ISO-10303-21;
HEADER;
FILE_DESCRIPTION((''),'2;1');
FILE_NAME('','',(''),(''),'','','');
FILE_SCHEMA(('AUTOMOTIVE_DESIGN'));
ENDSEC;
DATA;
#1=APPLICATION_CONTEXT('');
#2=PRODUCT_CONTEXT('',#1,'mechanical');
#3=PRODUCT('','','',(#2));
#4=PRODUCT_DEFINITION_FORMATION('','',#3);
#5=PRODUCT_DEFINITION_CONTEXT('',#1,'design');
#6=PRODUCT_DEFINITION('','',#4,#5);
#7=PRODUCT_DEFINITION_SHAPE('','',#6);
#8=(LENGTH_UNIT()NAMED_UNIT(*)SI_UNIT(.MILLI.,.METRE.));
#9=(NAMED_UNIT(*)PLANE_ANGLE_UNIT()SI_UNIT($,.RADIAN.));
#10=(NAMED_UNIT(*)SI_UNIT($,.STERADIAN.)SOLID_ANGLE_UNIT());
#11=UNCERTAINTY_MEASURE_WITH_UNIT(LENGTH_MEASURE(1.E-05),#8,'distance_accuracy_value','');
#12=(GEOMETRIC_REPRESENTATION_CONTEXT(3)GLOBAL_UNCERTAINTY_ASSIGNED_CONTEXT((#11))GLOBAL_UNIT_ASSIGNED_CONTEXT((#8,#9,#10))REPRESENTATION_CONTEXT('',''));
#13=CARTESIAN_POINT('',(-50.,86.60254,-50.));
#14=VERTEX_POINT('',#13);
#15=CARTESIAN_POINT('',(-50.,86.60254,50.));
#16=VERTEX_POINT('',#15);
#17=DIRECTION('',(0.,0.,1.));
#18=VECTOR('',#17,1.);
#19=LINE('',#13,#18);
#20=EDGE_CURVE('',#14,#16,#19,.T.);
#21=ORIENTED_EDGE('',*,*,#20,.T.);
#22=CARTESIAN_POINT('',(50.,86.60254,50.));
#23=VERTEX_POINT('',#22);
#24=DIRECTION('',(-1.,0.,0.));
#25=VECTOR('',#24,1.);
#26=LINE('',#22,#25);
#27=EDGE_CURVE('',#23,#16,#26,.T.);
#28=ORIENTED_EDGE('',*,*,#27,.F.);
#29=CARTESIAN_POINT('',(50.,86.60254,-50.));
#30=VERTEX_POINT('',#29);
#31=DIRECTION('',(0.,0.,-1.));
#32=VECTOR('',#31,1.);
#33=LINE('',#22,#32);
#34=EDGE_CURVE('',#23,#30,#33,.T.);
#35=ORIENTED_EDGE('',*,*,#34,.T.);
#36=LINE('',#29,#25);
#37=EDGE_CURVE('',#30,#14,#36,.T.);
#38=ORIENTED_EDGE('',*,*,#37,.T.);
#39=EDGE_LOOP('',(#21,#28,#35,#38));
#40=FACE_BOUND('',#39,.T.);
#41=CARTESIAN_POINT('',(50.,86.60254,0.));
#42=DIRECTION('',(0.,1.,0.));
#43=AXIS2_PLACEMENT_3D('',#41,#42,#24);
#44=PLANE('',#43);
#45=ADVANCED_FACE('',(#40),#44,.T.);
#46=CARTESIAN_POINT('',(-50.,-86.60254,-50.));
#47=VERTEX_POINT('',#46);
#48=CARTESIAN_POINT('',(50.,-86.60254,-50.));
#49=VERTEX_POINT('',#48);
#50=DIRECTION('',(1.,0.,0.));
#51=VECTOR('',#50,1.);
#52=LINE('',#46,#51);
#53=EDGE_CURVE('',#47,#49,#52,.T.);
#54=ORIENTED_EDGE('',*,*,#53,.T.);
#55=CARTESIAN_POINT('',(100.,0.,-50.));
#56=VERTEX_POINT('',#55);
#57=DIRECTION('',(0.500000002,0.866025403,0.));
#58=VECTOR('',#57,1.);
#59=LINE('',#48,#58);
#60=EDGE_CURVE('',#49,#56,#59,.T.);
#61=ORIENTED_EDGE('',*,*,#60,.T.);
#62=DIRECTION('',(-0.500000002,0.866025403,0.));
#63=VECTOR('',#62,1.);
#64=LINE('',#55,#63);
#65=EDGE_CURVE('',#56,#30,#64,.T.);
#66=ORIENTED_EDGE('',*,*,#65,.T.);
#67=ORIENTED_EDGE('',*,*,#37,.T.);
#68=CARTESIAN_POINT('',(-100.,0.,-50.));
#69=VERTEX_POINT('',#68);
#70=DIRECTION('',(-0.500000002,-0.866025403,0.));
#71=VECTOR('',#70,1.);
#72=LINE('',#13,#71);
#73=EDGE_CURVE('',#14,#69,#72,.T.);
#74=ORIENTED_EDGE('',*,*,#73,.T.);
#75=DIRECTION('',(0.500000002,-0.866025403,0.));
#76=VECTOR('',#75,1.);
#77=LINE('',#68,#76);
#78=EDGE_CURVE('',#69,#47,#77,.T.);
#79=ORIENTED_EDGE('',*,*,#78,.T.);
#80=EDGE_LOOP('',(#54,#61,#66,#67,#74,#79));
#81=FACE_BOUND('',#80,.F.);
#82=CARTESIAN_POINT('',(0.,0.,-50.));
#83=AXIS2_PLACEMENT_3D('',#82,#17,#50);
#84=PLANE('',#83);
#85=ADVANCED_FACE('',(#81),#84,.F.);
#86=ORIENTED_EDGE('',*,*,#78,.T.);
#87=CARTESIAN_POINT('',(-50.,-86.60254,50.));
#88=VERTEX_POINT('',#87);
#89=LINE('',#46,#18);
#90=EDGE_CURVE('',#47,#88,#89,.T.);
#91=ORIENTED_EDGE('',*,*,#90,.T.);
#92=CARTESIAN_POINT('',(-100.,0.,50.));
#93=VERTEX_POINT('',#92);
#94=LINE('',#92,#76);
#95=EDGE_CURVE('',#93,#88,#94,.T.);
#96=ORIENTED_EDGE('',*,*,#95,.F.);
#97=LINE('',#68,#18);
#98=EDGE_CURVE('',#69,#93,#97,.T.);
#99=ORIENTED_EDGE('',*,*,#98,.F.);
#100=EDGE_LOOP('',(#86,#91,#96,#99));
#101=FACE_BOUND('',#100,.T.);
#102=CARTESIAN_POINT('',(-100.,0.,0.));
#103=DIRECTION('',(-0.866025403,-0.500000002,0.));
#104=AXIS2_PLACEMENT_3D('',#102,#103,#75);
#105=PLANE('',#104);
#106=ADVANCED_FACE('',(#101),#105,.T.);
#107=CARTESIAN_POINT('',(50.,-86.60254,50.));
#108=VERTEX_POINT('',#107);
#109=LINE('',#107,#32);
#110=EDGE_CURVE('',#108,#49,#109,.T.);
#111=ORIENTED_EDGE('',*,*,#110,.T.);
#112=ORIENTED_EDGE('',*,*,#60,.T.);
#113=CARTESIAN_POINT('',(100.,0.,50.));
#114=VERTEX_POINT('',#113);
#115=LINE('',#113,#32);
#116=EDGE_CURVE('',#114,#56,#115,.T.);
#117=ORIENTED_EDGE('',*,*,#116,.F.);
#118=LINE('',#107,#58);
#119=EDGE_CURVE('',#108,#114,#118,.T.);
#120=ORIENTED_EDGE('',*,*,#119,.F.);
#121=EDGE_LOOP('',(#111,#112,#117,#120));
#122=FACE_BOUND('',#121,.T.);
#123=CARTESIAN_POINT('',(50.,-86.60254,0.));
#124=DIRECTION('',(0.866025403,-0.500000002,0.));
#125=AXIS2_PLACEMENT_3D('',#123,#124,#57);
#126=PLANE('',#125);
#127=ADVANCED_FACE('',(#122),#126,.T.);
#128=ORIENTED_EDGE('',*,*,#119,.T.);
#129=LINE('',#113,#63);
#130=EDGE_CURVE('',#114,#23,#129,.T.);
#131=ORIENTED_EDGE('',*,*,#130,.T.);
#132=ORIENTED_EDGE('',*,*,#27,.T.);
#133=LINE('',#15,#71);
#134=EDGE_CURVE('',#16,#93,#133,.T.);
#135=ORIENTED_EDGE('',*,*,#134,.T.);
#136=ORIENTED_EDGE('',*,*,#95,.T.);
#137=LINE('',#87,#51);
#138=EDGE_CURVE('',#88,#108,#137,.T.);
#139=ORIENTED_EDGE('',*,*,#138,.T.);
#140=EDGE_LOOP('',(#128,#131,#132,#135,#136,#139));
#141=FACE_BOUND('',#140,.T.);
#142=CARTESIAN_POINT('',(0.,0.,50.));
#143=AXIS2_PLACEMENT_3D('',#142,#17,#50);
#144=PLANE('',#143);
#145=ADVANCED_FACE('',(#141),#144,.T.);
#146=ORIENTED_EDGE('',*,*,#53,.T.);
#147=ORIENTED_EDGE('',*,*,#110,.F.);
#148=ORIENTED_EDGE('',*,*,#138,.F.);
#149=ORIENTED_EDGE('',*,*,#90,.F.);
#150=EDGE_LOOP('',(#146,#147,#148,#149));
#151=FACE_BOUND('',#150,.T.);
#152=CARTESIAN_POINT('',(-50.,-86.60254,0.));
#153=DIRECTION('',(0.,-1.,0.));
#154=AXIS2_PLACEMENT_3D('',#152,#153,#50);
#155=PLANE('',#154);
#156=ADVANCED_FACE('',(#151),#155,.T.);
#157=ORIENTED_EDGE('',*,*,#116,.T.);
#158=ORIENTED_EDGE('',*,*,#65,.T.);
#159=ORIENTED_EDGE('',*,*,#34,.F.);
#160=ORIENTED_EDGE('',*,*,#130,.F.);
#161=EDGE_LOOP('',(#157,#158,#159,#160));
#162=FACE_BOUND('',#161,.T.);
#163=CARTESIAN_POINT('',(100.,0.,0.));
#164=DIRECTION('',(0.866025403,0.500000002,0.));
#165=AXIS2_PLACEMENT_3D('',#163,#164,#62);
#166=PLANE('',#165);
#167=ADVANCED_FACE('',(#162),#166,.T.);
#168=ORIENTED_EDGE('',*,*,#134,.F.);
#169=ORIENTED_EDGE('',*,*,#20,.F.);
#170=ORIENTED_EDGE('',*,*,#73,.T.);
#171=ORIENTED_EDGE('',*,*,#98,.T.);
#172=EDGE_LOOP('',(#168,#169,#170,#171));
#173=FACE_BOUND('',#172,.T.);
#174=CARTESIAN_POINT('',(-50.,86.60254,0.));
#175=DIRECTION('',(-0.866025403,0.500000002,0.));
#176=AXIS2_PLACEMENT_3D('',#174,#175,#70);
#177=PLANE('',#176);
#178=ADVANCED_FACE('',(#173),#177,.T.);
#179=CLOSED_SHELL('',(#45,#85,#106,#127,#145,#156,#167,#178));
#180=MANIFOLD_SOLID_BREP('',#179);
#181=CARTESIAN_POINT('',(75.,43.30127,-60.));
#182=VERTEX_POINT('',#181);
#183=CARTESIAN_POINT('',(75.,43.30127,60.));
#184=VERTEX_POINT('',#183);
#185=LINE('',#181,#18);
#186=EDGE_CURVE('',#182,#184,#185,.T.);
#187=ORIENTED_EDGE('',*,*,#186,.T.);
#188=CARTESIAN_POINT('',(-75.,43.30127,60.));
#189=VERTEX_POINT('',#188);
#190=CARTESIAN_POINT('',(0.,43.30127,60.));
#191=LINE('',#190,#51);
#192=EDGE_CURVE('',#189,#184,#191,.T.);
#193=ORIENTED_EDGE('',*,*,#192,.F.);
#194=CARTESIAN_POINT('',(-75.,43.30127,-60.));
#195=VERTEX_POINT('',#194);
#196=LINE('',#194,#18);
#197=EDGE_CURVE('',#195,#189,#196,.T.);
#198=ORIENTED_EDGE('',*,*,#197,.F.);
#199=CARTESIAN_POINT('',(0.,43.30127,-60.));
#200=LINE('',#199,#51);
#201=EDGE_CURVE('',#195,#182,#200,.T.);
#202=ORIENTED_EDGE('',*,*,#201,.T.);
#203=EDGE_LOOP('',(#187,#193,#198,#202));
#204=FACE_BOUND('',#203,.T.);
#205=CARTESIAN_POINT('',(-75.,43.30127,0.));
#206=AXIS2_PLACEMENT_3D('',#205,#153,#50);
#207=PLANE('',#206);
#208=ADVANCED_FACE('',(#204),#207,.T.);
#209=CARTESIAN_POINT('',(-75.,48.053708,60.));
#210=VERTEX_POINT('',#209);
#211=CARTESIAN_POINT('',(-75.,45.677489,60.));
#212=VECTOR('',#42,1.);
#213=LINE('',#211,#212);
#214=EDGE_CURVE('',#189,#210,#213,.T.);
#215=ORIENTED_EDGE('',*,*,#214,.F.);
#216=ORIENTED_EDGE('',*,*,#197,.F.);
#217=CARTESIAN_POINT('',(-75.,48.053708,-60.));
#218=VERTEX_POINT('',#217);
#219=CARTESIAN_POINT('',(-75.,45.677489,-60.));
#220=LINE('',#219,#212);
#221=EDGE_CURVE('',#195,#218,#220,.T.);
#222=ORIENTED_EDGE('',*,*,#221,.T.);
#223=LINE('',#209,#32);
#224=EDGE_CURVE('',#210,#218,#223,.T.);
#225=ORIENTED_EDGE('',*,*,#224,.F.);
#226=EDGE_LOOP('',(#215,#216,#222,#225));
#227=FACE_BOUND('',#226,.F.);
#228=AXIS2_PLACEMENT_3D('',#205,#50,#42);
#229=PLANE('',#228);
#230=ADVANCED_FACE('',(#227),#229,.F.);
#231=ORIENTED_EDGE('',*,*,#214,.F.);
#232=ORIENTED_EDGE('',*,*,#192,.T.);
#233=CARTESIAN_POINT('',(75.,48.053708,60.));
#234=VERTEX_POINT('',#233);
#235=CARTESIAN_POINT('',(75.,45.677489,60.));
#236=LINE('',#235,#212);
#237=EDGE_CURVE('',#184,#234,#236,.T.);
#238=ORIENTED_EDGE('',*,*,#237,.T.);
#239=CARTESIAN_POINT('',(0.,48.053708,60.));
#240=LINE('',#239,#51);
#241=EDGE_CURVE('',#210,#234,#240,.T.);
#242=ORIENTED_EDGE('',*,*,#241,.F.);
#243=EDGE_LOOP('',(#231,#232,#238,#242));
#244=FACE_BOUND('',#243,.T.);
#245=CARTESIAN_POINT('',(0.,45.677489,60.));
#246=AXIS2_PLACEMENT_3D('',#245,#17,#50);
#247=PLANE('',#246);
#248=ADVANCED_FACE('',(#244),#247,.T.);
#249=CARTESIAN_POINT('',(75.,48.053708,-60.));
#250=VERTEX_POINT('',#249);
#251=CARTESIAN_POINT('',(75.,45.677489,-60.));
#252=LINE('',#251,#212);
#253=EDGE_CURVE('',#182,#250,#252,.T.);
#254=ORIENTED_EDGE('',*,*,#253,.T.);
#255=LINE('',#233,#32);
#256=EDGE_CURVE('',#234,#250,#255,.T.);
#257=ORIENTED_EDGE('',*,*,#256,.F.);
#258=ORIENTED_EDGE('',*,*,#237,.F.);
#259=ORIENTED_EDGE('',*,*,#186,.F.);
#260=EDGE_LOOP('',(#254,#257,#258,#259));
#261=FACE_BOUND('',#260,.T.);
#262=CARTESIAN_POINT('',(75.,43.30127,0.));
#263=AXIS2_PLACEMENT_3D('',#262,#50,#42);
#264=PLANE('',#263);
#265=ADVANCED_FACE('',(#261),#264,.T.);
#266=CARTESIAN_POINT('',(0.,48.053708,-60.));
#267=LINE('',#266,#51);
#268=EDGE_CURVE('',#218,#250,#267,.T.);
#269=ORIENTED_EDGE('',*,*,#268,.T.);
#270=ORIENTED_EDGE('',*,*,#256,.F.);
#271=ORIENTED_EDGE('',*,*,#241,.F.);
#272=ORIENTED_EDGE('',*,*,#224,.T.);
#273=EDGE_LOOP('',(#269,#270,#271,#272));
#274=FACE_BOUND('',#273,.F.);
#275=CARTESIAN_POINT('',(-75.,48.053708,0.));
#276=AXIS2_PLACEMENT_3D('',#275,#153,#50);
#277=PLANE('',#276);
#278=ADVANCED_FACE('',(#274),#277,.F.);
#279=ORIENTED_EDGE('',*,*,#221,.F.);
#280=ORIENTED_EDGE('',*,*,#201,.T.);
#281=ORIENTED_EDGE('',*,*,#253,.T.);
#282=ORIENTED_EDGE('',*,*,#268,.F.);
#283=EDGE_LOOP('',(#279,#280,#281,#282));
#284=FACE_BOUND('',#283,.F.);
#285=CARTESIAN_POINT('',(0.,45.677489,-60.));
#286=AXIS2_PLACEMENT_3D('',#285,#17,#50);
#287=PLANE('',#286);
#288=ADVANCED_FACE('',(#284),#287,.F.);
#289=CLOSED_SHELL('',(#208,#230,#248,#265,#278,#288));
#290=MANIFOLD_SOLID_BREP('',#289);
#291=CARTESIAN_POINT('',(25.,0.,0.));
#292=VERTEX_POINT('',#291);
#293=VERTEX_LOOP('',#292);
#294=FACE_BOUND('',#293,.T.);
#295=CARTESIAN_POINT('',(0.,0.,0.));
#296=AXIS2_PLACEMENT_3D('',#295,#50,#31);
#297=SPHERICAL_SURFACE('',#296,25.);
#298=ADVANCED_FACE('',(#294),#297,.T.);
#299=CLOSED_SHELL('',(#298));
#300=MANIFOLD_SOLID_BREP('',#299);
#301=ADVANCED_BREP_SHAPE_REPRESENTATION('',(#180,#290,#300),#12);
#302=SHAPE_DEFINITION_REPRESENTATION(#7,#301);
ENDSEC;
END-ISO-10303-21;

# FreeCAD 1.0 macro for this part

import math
import FreeCAD as App
import Part
import Sketcher

V = App.Vector
Q = App.Units.Quantity

doc = App.newDocument("Part")
body = doc.addObject("PartDesign::Body", "Body")

# Sketch on XY plane
sketch1 = body.newObject("Sketcher::SketchObject", "Sketch")
sketch1.AttachmentSupport = (doc.getObject("XY_Plane"), [""])
sketch1.MapMode = "FlatFace"
sketch1.addGeometry([
    Part.LineSegment(V(50, 87, 0), V(-50, 87, 0)),  # 0
    Part.LineSegment(V(-50, 87, 0), V(-100, 0, 0)),  # 1
    Part.LineSegment(V(-100, 0, 0), V(-50, -87, 0)),  # 2
    Part.LineSegment(V(-50, -87, 0), V(50, -87, 0)),  # 3
    Part.LineSegment(V(50, -87, 0), V(100, 0, 0)),  # 4
    Part.LineSegment(V(100, 0, 0), V(50, 87, 0)),  # 5
], False)
sketch1.addConstraint([
    Sketcher.Constraint("Coincident", 0, 2, 1, 1),
    Sketcher.Constraint("Coincident", 1, 2, 2, 1),
    Sketcher.Constraint("Coincident", 2, 2, 3, 1),
    Sketcher.Constraint("Coincident", 3, 2, 4, 1),
    Sketcher.Constraint("Coincident", 4, 2, 5, 1),
    Sketcher.Constraint("Coincident", 5, 2, 0, 1),
    Sketcher.Constraint("Horizontal", 0),
    Sketcher.Constraint("Horizontal", 3),
    Sketcher.Constraint("Symmetric", 0, 2, 3, 2, -1, 1),
    Sketcher.Constraint("Symmetric", 1, 2, 4, 2, -1, 1),
    Sketcher.Constraint("PointOnObject", 1, 2, -1),
    Sketcher.Constraint("Parallel", 2, 5),
    Sketcher.Constraint("Vertical", 0, 2, 2, 2),
    Sketcher.Constraint("DistanceX", 0, 2, 0, 1, Q("100 mm")),
    Sketcher.Constraint("Angle", 1, Q("-120 deg")),
    Sketcher.Constraint("Distance", 1, Q("100 mm")),
])
pad1 = body.newObject("PartDesign::Pad", "Pad")
pad1.Profile = sketch1
pad1.Length = 100
pad1.Midplane = True
body2 = doc.addObject("PartDesign::Body", "Body001")

# Sketch on XY plane
sketch2 = body2.newObject("Sketcher::SketchObject", "Sketch001")
sketch2.AttachmentSupport = (doc.getObject("XY_Plane001"), [""])
sketch2.MapMode = "FlatFace"
sketch2.addGeometry([
    Part.LineSegment(V(-75, 48.1, 0), V(-75, 43.3, 0)),
    Part.LineSegment(V(-75, 43.3, 0), V(75, 43.3, 0)),
    Part.LineSegment(V(75, 43.3, 0), V(75, 48.1, 0)),
    Part.LineSegment(V(75, 48.1, 0), V(-75, 48.1, 0)),
], False)
sketch2.addConstraint([
    Sketcher.Constraint("Coincident", 0, 2, 1, 1),
    Sketcher.Constraint("Coincident", 1, 2, 2, 1),
    Sketcher.Constraint("Coincident", 2, 2, 3, 1),
    Sketcher.Constraint("Coincident", 3, 2, 0, 1),
    Sketcher.Constraint("Vertical", 0),
    Sketcher.Constraint("Horizontal", 1),
    Sketcher.Constraint("Vertical", 2),
    Sketcher.Constraint("Horizontal", 3),
    Sketcher.Constraint("DistanceX", 1, 1, 1, 2, Q("150 mm")),
    Sketcher.Constraint("DistanceX", 0, 2, -1, 1, Q("75 mm")),
    Sketcher.Constraint("DistanceY", 0, 2, 0, 1, Q("4.752438 mm")),
    Sketcher.Constraint("DistanceY", -1, 1, 0, 2, Q("43.30127 mm")),
])
pad2 = body2.newObject("PartDesign::Pad", "Pad001")
pad2.Profile = sketch2
pad2.Length = 120
pad2.Midplane = True
body3 = doc.addObject("PartDesign::Body", "Body002")

# Sketch on XZ plane
sketch3 = body3.newObject("Sketcher::SketchObject", "Sketch002")
sketch3.AttachmentSupport = (doc.getObject("XZ_Plane002"), [""])
sketch3.MapMode = "FlatFace"
sketch3.addGeometry([
    Part.LineSegment(V(25, 0, 0), V(-25, 0, 0)),
    Part.ArcOfCircle(Part.Circle(V(0, 0, 0), V(0, 0, 1), 25), math.radians(180), math.radians(360)),
], False)
sketch3.addConstraint([
    Sketcher.Constraint("Coincident", 0, 1, 1, 2),
    Sketcher.Constraint("Coincident", 1, 1, 0, 2),
    Sketcher.Constraint("Horizontal", 0),
    Sketcher.Constraint("Coincident", 1, 3, -1, 1),
    Sketcher.Constraint("PointOnObject", 0, 1, -1),
    Sketcher.Constraint("Radius", 1, Q("25 mm")),
])
revolution = body3.newObject("PartDesign::Revolution", "Revolution")
revolution.Profile = sketch3
revolution.ReferenceAxis = (sketch3, ["H_Axis"])
revolution.Angle = 360

doc.recompute()
